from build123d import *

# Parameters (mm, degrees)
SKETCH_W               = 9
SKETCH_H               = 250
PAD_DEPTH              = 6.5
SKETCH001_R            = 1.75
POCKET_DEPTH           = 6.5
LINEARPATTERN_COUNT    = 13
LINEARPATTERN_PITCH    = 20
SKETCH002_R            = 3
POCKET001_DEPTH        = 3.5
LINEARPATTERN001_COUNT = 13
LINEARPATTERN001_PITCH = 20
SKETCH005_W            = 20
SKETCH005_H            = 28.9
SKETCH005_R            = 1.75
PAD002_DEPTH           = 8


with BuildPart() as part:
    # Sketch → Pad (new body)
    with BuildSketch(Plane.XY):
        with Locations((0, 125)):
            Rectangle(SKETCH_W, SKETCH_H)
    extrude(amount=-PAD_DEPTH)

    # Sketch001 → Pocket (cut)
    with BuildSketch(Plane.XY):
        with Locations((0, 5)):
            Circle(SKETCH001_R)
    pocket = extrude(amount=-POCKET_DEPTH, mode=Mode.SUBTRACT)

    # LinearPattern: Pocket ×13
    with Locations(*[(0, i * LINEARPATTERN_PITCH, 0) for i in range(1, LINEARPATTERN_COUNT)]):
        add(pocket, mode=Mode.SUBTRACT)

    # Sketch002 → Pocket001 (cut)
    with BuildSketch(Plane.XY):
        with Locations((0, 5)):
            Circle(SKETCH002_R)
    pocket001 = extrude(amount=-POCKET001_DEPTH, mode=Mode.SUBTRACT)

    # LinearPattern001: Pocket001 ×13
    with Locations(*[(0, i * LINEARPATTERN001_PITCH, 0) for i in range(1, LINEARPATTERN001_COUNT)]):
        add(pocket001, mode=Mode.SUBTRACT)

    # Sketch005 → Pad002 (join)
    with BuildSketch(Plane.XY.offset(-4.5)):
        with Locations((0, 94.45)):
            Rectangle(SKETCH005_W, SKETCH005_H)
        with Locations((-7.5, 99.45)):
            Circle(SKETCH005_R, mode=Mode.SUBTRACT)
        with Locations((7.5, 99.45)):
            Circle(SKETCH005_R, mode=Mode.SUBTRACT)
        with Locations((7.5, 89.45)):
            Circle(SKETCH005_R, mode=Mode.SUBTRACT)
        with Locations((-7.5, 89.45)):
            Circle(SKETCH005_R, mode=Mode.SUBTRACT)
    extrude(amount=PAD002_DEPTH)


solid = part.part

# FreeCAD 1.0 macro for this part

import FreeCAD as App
import Part
import Sketcher

V = App.Vector


def add_polygon(sketch, points):
    """Adds a closed chain of lines whose ends are joined by coincident constraints."""
    first, n = sketch.GeometryCount, len(points)
    for a, b in zip(points, points[1:] + points[:1]):
        sketch.addGeometry(Part.LineSegment(App.Vector(*a, 0), App.Vector(*b, 0)), False)
    for i in range(n):
        sketch.addConstraint(Sketcher.Constraint("Coincident", first + i, 2, first + (i + 1) % n, 1))

doc = App.newDocument("Part")
body = doc.addObject("PartDesign::Body", "Body")

sketch1 = body.newObject("Sketcher::SketchObject", "Sketch")
sketch1.AttachmentSupport = (doc.getObject("XY_Plane"), [""])
sketch1.MapMode = "FlatFace"
add_polygon(sketch1, [(-4, 250), (-4, 0), (4, 0), (4, 250)])
sketch1.addConstraint([
    Sketcher.Constraint("Vertical", 0),
    Sketcher.Constraint("Horizontal", 1),
    Sketcher.Constraint("Vertical", 2),
    Sketcher.Constraint("Horizontal", 3),
    Sketcher.Constraint("Symmetric", 0, 2, 1, 2, -1, 1),
    Sketcher.Constraint("DistanceX", 1, 1, 1, 2, 9.0),
    Sketcher.Constraint("DistanceY", 0, 2, 0, 1, 250.0),
])
pad1 = body.newObject("PartDesign::Pad", "Pad")
pad1.Profile = sketch1
pad1.Length = 6.5
pad1.Reversed = True

sketch2 = body.newObject("Sketcher::SketchObject", "Sketch001")
sketch2.AttachmentSupport = (doc.getObject("XY_Plane"), [""])
sketch2.MapMode = "FlatFace"
sketch2.addGeometry(Part.Circle(V(0, 5, 0), V(0, 0, 1), 1.8), False)
sketch2.addConstraint([
    Sketcher.Constraint("PointOnObject", 0, 3, -2),
    Sketcher.Constraint("Diameter", 0, 3.5),
    Sketcher.Constraint("DistanceY", -1, 1, 0, 3, 5.0),
])
pocket1 = body.newObject("PartDesign::Pocket", "Pocket")
pocket1.Profile = sketch2
pocket1.Length = 6.5
doc.recompute()

linearpattern = body.newObject("PartDesign::LinearPattern", "LinearPattern")
linearpattern.Originals = [pocket1]
linearpattern.Direction = (doc.getObject("Y_Axis"), [""])
linearpattern.Mode = "offset"
linearpattern.Offset = 20
linearpattern.Occurrences = 13
body.Tip = linearpattern

sketch3 = body.newObject("Sketcher::SketchObject", "Sketch002")
sketch3.AttachmentSupport = (doc.getObject("XY_Plane"), [""])
sketch3.MapMode = "FlatFace"
sketch3.addGeometry(Part.Circle(V(0, 5, 0), V(0, 0, 1), 3), False)
sketch3.addConstraint([
    Sketcher.Constraint("PointOnObject", 0, 3, -2),
    Sketcher.Constraint("Diameter", 0, 6.0),
    Sketcher.Constraint("DistanceY", -1, 1, 0, 3, 5.0),
])
pocket2 = body.newObject("PartDesign::Pocket", "Pocket001")
pocket2.Profile = sketch3
pocket2.Length = 3.5
doc.recompute()

linearpattern2 = body.newObject("PartDesign::LinearPattern", "LinearPattern001")
linearpattern2.Originals = [pocket2]
linearpattern2.Direction = (doc.getObject("Y_Axis"), [""])
linearpattern2.Mode = "offset"
linearpattern2.Offset = 20
linearpattern2.Occurrences = 13
body.Tip = linearpattern2

sketch4 = body.newObject("Sketcher::SketchObject", "Sketch003")
sketch4.AttachmentSupport = (doc.getObject("XY_Plane"), [""])
sketch4.MapMode = "FlatFace"
sketch4.AttachmentOffset = App.Placement(V(0, 0, -4.5), App.Rotation())
add_polygon(sketch4, [(-10, 108.9), (-10, 80), (10, 80), (10, 108.9)])
sketch4.addGeometry(Part.Circle(V(-7.5, 89.5, 0), V(0, 0, 1), 1.8), False)
sketch4.addGeometry(Part.Circle(V(7.5, 89.5, 0), V(0, 0, 1), 1.8), False)
sketch4.addGeometry(Part.Circle(V(-7.5, 99.5, 0), V(0, 0, 1), 1.8), False)
sketch4.addGeometry(Part.Circle(V(7.5, 99.5, 0), V(0, 0, 1), 1.8), False)
sketch4.addConstraint([
    Sketcher.Constraint("Vertical", 0),
    Sketcher.Constraint("Horizontal", 1),
    Sketcher.Constraint("Vertical", 2),
    Sketcher.Constraint("Horizontal", 3),
    Sketcher.Constraint("Equal", 4, 5),
    Sketcher.Constraint("Equal", 5, 6),
    Sketcher.Constraint("Equal", 6, 7),
    Sketcher.Constraint("Symmetric", 4, 3, 5, 3, -2),
    Sketcher.Constraint("Symmetric", 6, 3, 7, 3, -2),
    Sketcher.Constraint("Vertical", 4, 3, 6, 3),
    Sketcher.Constraint("Diameter", 4, 3.5),
    Sketcher.Constraint("DistanceX", 1, 1, 1, 2, 20.0),
    Sketcher.Constraint("DistanceY", 0, 2, 0, 1, 28.9),
    Sketcher.Constraint("DistanceX", 0, 2, -1, 1, 10.0),
    Sketcher.Constraint("DistanceY", -1, 1, 0, 2, 80.0),
    Sketcher.Constraint("DistanceX", 4, 3, 5, 3, 15.0),
    Sketcher.Constraint("DistanceY", 4, 3, 6, 3, 10.0),
    Sketcher.Constraint("DistanceY", -1, 1, 4, 3, 89.45),
])
pad2 = body.newObject("PartDesign::Pad", "Pad001")
pad2.Profile = sketch4
pad2.Length = 8

doc.recompute()
